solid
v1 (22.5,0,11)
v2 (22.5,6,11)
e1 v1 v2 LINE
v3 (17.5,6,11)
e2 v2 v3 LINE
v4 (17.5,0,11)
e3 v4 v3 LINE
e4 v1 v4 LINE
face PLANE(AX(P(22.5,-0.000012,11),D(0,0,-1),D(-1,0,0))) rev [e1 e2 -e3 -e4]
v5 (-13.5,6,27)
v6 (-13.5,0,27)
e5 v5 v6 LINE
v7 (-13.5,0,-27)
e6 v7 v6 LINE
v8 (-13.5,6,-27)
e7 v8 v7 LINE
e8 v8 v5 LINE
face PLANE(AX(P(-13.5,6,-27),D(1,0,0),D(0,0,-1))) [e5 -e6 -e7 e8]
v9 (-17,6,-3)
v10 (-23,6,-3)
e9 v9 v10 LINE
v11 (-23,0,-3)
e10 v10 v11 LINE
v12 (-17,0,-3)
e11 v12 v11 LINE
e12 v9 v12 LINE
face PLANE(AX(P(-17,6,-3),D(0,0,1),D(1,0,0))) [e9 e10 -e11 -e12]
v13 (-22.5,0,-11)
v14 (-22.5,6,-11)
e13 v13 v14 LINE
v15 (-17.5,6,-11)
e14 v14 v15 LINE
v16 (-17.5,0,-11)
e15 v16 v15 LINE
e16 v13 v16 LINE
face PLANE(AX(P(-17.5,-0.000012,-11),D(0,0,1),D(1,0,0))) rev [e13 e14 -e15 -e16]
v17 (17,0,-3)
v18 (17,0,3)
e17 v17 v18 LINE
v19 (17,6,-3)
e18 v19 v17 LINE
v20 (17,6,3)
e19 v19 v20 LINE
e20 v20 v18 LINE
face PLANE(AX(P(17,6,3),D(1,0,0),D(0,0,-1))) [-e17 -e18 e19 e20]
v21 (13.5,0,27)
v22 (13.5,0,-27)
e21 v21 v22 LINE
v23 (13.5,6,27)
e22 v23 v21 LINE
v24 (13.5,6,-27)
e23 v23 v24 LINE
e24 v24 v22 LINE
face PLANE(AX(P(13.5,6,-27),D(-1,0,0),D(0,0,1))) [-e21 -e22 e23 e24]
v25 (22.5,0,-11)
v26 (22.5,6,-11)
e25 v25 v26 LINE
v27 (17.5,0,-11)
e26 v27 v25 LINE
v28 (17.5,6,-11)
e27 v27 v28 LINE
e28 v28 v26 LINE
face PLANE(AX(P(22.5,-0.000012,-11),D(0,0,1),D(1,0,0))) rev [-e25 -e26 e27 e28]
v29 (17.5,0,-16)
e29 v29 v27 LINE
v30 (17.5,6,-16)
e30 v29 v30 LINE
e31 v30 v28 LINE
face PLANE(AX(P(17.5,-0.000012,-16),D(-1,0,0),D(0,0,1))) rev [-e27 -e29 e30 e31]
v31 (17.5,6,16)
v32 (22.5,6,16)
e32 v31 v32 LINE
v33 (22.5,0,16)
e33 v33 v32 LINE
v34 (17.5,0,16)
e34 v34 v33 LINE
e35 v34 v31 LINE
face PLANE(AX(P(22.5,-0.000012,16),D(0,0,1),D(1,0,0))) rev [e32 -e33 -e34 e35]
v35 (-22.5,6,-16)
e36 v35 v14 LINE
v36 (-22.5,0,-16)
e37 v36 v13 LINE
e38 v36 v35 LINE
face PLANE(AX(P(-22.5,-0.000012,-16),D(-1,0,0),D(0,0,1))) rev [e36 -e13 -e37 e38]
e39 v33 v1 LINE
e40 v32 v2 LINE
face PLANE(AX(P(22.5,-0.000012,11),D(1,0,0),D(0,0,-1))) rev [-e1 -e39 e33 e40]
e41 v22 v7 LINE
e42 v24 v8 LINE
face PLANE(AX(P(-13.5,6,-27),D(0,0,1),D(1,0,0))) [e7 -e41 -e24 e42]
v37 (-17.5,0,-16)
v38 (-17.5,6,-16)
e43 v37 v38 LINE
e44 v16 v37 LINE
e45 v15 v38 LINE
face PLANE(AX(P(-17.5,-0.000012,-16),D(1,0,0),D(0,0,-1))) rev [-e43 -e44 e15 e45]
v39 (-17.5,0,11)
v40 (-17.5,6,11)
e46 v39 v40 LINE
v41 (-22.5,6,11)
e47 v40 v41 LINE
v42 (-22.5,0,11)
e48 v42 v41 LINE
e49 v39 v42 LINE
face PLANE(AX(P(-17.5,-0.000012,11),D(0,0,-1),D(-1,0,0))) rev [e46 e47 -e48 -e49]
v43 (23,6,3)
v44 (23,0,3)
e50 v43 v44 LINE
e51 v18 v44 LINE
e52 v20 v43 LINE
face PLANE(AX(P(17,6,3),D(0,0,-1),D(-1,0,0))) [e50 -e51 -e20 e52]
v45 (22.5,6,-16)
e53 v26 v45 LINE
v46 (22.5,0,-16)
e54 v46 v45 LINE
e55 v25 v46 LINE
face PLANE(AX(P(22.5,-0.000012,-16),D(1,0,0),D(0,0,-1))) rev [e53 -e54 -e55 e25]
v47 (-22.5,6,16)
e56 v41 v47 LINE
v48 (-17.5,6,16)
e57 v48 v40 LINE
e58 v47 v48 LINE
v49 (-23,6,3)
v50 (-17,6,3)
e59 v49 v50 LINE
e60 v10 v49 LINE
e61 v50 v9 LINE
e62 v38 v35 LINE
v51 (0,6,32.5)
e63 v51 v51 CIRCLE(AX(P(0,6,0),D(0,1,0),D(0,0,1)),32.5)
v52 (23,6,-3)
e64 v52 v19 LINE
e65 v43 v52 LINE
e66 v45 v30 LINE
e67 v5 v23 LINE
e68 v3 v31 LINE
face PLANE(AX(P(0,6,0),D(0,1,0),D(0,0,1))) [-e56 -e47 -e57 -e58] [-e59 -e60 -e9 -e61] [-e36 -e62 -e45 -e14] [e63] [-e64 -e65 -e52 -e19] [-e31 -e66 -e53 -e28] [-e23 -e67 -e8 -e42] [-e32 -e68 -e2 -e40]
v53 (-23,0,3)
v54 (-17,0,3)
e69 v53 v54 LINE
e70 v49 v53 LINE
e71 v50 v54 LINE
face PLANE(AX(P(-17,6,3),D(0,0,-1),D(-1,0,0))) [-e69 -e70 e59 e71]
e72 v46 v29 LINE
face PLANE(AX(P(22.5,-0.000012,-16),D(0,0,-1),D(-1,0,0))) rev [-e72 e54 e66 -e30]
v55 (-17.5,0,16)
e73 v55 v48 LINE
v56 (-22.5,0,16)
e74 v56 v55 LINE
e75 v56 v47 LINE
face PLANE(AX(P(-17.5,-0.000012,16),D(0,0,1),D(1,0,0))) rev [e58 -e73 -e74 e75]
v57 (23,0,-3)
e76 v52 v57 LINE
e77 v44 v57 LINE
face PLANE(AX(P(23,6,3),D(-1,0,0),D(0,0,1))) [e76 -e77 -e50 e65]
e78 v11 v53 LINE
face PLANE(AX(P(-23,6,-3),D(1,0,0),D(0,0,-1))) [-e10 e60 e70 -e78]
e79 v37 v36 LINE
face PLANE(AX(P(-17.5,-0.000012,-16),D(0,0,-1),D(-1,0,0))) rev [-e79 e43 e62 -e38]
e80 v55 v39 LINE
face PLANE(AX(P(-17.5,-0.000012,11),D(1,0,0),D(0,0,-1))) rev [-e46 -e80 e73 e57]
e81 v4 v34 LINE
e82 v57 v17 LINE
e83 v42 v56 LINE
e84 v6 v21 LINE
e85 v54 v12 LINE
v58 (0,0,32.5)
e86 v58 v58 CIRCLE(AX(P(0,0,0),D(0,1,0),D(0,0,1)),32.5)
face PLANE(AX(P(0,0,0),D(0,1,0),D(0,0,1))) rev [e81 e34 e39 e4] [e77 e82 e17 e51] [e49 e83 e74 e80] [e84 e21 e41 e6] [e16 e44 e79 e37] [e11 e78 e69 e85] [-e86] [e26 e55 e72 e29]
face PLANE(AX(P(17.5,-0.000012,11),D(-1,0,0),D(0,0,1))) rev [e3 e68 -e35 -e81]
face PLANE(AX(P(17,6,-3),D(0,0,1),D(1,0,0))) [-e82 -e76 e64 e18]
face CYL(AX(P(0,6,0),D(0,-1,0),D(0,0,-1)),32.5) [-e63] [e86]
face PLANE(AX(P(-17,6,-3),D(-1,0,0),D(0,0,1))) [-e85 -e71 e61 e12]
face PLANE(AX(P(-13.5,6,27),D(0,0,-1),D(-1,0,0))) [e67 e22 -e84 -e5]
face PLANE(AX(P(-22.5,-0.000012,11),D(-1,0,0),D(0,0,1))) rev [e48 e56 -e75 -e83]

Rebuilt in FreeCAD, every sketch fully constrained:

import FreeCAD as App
import Part
import Sketcher


def add_polygon(sketch, points):
    """Adds a closed chain of lines whose ends are joined by coincident constraints."""
    first, n = sketch.GeometryCount, len(points)
    for a, b in zip(points, points[1:] + points[:1]):
        sketch.addGeometry(Part.LineSegment(App.Vector(*a, 0), App.Vector(*b, 0)), False)
    for i in range(n):
        sketch.addConstraint(Sketcher.Constraint("Coincident", first + i, 2, first + (i + 1) % n, 1))

doc = App.newDocument("Part")
body = doc.addObject("PartDesign::Body", "Body")

# Sketch on XZ plane
sketch1 = body.newObject("Sketcher::SketchObject", "Sketch")
sketch1.AttachmentSupport = (doc.getObject("XZ_Plane"), [""])
sketch1.MapMode = "FlatFace"
sketch1.addGeometry(Part.Circle(App.Vector(0, 0, 0), App.Vector(0, 0, 1), 32), False)  # 0
add_polygon(sketch1, [(-17, 3), (-23, 3), (-23, -3), (-17, -3)])  # lines 1-4
add_polygon(sketch1, [(23, 3), (17, 3), (17, -3), (23, -3)])  # lines 5-8
add_polygon(sketch1, [(14, 27), (-14, 27), (-14, -27), (14, -27)])  # lines 9-12
sketch1.addConstraint([
    Sketcher.Constraint("Horizontal", 1),
    Sketcher.Constraint("Vertical", 2),
    Sketcher.Constraint("Horizontal", 3),
    Sketcher.Constraint("Vertical", 4),
    Sketcher.Constraint("Horizontal", 5),
    Sketcher.Constraint("Vertical", 6),
    Sketcher.Constraint("Horizontal", 7),
    Sketcher.Constraint("Vertical", 8),
    Sketcher.Constraint("Horizontal", 9),
    Sketcher.Constraint("Vertical", 10),
    Sketcher.Constraint("Horizontal", 11),
    Sketcher.Constraint("Vertical", 12),
    Sketcher.Constraint("Coincident", 0, 3, -1, 1),
    Sketcher.Constraint("Symmetric", 3, 2, 5, 2, -1, 1),
    Sketcher.Constraint("Symmetric", 1, 2, 7, 2, -1, 1),
    Sketcher.Constraint("Symmetric", 9, 2, 11, 2, -1, 1),
    Sketcher.Constraint("Horizontal", 4, 2, 5, 2),
    Sketcher.Constraint("Equal", 7, 2),
    Sketcher.Constraint("Diameter", 0, 65.0),
    Sketcher.Constraint("DistanceX", 1, 2, 1, 1, 6.0),
    Sketcher.Constraint("DistanceX", 9, 2, 9, 1, 27.0),
    Sketcher.Constraint("DistanceY", 10, 2, 10, 1, 54.0),
    Sketcher.Constraint("DistanceX", 1, 2, -1, 1, 23.0),
])
pad1 = body.newObject("PartDesign::Pad", "Pad")
pad1.Profile = sketch1
pad1.Length = 6
pad1.Reversed = True

# Sketch on XZ plane
sketch2 = body.newObject("Sketcher::SketchObject", "Sketch001")
sketch2.AttachmentSupport = (doc.getObject("XZ_Plane"), [""])
sketch2.MapMode = "FlatFace"
add_polygon(sketch2, [(-22, -16), (-22, -11), (-18, -11), (-18, -16)])  # lines 0-3
add_polygon(sketch2, [(-22, 11), (-22, 16), (-18, 16), (-18, 11)])  # lines 4-7
add_polygon(sketch2, [(18, 11), (18, 16), (22, 16), (22, 11)])  # lines 8-11
add_polygon(sketch2, [(18, -16), (18, -11), (22, -11), (22, -16)])  # lines 12-15
sketch2.addConstraint([
    Sketcher.Constraint("Vertical", 0),
    Sketcher.Constraint("Horizontal", 1),
    Sketcher.Constraint("Vertical", 2),
    Sketcher.Constraint("Horizontal", 3),
    Sketcher.Constraint("Vertical", 4),
    Sketcher.Constraint("Horizontal", 5),
    Sketcher.Constraint("Vertical", 6),
    Sketcher.Constraint("Horizontal", 7),
    Sketcher.Constraint("Vertical", 8),
    Sketcher.Constraint("Horizontal", 9),
    Sketcher.Constraint("Vertical", 10),
    Sketcher.Constraint("Horizontal", 11),
    Sketcher.Constraint("Vertical", 12),
    Sketcher.Constraint("Horizontal", 13),
    Sketcher.Constraint("Vertical", 14),
    Sketcher.Constraint("Horizontal", 15),
    Sketcher.Constraint("Symmetric", 2, 2, 8, 2, -1, 1),
    Sketcher.Constraint("Symmetric", 0, 2, 10, 2, -1, 1),
    Sketcher.Constraint("Symmetric", 6, 2, 12, 2, -1, 1),
    Sketcher.Constraint("Symmetric", 4, 2, 14, 2, -1, 1),
    Sketcher.Constraint("Symmetric", 5, 2, 8, 2, -2),
    Sketcher.Constraint("Symmetric", 7, 2, 10, 2, -2),
    Sketcher.Constraint("Equal", 15, 0),
    Sketcher.Constraint("DistanceX", 1, 1, 1, 2, 5.0),
    Sketcher.Constraint("DistanceY", 0, 2, -1, 1, 11.0),
    Sketcher.Constraint("DistanceX", 5, 2, 8, 2, 35.0),
])
pocket1 = body.newObject("PartDesign::Pocket", "Pocket")
pocket1.Profile = sketch2
pocket1.Type = "ThroughAll"
pocket1.Midplane = True

doc.recompute()
